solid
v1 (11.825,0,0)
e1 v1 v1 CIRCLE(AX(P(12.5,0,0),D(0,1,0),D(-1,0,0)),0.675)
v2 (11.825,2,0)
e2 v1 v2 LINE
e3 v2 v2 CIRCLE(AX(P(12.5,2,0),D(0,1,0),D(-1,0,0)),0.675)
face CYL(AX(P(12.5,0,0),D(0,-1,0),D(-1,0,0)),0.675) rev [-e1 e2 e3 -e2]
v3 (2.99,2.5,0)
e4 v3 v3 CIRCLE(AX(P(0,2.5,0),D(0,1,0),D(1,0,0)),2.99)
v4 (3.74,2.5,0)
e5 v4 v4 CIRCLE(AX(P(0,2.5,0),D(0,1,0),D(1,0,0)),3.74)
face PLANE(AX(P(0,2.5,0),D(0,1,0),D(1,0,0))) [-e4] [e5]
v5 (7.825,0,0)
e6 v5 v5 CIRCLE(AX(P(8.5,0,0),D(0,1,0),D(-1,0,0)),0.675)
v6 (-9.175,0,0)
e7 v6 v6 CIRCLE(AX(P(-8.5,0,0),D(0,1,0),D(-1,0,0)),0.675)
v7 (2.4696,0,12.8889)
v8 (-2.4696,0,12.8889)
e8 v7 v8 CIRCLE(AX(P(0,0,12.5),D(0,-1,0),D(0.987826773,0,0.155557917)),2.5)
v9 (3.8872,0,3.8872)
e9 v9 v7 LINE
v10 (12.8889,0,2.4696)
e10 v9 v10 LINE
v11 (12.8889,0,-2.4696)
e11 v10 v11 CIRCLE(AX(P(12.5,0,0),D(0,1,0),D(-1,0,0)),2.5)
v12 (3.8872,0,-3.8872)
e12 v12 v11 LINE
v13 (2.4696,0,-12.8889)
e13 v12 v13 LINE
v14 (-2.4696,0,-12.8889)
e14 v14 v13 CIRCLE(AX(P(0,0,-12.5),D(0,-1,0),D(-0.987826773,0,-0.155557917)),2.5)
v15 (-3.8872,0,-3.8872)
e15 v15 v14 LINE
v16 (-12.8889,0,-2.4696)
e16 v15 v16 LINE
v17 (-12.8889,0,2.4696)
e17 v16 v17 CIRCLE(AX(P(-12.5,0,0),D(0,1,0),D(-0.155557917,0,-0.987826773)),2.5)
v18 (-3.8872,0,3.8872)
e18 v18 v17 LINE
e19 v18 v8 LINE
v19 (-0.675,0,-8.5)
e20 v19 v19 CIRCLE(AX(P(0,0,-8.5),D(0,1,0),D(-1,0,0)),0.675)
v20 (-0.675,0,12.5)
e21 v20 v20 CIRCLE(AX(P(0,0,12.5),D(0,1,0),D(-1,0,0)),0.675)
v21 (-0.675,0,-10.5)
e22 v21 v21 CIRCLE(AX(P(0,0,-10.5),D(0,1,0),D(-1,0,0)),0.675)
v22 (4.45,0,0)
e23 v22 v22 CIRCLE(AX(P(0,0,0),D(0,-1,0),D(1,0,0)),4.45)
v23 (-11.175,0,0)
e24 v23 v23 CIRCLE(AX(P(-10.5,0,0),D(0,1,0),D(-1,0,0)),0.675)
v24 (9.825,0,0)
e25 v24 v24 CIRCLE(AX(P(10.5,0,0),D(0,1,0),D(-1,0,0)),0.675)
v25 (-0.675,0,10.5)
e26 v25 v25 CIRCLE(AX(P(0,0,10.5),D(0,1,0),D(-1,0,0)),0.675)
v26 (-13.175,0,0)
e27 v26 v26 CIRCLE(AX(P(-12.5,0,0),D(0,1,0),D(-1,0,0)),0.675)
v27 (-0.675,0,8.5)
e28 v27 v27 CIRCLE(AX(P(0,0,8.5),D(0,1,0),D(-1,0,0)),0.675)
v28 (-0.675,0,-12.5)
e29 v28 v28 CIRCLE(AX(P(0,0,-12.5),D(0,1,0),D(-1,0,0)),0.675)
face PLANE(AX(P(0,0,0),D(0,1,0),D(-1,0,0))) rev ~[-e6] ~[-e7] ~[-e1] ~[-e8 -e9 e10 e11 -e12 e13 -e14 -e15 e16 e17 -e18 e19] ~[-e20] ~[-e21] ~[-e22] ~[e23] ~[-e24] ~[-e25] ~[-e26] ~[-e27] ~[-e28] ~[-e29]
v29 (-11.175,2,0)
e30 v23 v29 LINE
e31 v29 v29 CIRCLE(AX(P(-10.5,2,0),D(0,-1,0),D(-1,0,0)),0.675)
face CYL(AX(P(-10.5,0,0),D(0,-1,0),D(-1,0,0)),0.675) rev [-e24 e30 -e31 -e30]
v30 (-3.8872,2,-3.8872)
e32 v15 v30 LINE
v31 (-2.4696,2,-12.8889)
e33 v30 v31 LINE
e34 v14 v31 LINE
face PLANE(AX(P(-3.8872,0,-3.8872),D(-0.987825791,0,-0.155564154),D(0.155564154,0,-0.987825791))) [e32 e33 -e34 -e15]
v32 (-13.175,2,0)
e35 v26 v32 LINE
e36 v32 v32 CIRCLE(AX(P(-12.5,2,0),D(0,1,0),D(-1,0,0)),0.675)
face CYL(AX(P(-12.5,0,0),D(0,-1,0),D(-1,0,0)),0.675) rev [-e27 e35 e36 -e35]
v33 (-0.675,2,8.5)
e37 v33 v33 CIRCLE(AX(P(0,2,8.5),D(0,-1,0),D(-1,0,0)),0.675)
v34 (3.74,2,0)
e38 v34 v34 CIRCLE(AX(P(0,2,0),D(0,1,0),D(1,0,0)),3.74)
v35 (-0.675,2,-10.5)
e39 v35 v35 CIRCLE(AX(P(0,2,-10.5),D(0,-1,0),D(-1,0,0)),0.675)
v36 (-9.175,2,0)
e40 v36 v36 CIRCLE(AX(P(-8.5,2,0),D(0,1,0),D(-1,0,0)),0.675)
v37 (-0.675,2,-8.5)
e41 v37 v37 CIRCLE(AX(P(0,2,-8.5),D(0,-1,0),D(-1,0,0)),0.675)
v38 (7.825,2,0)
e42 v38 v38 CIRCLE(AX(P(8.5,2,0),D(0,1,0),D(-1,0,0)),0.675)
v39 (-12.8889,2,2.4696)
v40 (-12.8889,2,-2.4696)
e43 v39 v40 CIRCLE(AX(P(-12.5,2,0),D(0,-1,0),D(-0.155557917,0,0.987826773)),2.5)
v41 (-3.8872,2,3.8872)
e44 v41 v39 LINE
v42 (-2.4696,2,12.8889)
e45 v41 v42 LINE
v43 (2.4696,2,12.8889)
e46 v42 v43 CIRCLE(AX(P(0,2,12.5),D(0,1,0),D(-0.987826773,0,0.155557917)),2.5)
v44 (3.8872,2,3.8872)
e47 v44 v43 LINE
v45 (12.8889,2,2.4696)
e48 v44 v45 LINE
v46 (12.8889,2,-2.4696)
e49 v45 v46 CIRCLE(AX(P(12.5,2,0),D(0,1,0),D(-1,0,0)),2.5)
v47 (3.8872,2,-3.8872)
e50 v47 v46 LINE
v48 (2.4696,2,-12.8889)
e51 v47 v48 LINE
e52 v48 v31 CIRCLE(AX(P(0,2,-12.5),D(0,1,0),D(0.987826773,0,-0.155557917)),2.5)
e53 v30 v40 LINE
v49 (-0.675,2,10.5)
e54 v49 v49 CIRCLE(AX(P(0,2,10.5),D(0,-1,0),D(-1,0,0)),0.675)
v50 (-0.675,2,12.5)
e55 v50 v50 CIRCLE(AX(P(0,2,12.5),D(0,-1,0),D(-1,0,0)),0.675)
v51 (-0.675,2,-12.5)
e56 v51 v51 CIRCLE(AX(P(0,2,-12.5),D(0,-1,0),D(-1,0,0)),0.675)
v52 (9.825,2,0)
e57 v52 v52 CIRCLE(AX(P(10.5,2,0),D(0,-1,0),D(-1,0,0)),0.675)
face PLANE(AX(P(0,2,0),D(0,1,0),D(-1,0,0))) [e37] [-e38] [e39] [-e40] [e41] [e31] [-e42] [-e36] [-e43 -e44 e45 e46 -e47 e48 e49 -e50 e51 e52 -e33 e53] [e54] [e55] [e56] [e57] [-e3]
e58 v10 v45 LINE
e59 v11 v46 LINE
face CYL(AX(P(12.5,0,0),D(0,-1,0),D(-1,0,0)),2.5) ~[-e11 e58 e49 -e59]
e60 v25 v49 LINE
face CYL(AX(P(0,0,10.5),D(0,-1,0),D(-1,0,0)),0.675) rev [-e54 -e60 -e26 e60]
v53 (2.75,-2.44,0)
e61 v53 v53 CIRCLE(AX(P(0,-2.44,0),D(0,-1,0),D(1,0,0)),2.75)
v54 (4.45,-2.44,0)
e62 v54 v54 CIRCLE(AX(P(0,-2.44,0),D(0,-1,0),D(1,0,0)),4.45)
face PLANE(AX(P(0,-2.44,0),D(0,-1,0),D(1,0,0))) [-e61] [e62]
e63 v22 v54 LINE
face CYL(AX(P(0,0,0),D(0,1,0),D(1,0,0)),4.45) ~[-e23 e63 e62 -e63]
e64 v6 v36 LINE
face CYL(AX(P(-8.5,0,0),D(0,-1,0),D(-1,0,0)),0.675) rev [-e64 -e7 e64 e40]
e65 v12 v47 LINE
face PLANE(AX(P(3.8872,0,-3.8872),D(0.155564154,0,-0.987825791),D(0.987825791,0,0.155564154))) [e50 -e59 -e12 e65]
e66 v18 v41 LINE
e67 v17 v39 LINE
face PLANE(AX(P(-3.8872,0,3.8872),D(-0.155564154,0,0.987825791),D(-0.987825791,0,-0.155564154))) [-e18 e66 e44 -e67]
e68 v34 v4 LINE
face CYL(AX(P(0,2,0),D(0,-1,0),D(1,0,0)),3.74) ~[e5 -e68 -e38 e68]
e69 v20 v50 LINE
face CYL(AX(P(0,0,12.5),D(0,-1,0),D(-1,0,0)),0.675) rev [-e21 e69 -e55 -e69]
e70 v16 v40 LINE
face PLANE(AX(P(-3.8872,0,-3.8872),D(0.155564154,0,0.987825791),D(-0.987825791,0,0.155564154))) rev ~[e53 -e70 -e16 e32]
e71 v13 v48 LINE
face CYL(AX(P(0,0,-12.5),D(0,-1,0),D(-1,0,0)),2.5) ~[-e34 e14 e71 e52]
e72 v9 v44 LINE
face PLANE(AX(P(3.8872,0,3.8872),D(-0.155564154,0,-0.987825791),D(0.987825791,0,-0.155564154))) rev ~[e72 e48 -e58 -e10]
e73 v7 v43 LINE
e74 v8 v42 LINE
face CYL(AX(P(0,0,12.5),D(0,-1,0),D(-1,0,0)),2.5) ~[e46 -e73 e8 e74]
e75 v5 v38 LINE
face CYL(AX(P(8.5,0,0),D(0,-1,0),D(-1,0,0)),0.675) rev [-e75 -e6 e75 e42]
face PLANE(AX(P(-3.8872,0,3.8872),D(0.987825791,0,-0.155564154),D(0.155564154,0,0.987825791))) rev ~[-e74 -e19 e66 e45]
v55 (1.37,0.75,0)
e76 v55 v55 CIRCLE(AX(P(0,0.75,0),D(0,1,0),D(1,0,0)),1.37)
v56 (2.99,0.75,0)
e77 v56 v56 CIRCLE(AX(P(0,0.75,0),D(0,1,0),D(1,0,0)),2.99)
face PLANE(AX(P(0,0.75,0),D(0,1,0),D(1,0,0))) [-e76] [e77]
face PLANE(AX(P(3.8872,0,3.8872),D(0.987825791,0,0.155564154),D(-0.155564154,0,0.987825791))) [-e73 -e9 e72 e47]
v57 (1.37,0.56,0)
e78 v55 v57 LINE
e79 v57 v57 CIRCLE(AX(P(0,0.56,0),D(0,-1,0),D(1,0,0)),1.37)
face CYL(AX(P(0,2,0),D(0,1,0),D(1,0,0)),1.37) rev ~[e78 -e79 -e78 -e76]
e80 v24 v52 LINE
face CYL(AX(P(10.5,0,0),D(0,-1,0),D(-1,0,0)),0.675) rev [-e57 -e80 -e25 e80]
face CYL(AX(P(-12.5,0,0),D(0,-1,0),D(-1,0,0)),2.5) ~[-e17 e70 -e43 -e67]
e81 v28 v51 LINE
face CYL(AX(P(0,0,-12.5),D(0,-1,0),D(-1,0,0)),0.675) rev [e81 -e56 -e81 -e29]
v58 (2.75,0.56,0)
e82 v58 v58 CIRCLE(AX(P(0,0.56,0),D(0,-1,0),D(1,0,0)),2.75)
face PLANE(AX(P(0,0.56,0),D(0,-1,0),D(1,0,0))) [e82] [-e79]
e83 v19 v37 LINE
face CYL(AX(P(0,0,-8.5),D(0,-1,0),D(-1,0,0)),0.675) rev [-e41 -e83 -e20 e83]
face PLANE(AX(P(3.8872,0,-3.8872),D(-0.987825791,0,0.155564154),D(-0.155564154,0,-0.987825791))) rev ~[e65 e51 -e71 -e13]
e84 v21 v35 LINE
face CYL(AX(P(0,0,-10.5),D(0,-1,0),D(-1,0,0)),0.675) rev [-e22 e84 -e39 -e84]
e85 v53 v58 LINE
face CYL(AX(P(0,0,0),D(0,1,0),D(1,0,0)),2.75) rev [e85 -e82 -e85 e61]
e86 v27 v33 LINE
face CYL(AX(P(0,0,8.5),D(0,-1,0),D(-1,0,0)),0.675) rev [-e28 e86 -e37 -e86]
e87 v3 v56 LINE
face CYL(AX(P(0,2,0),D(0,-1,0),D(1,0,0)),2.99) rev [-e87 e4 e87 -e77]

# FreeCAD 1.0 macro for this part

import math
import FreeCAD as App
import Part
import Sketcher

V = App.Vector
Q = App.Units.Quantity

doc = App.newDocument("Part")
body = doc.addObject("PartDesign::Body", "Body")

# Sketch on XZ plane
sketch1 = body.newObject("Sketcher::SketchObject", "Sketch")
sketch1.AttachmentSupport = (doc.getObject("XZ_Plane"), [""])
sketch1.MapMode = "FlatFace"
sketch1.addGeometry(Part.ArcOfCircle(Part.Circle(V(-12.5, 0, 0), V(0, 0, 1), 2.5), math.radians(99), math.radians(261)), False)
sketch1.addGeometry(Part.LineSegment(V(-12.9, 2.5, 0), V(-3.9, 3.9, 0)), False)
sketch1.addGeometry(Part.LineSegment(V(-3.9, 3.9, 0), V(-2.5, 12.9, 0)), False)
sketch1.addGeometry(Part.ArcOfCircle(Part.Circle(V(0, 12.5, 0), V(0, 0, 1), 2.5), math.radians(9), math.radians(171)), False)
sketch1.addGeometry(Part.LineSegment(V(2.5, 12.9, 0), V(3.9, 3.9, 0)), False)
sketch1.addGeometry(Part.LineSegment(V(3.9, 3.9, 0), V(12.9, 2.5, 0)), False)
sketch1.addGeometry(Part.ArcOfCircle(Part.Circle(V(12.5, 0, 0), V(0, 0, 1), 2.5), math.radians(-81), math.radians(81)), False)
sketch1.addGeometry(Part.LineSegment(V(12.9, -2.5, 0), V(3.9, -3.9, 0)), False)
sketch1.addGeometry(Part.LineSegment(V(3.9, -3.9, 0), V(2.5, -12.9, 0)), False)
sketch1.addGeometry(Part.ArcOfCircle(Part.Circle(V(0, -12.5, 0), V(0, 0, 1), 2.5), math.radians(-171), math.radians(-9)), False)
sketch1.addGeometry(Part.LineSegment(V(-2.5, -12.9, 0), V(-3.9, -3.9, 0)), False)
sketch1.addGeometry(Part.LineSegment(V(-3.9, -3.9, 0), V(-12.9, -2.5, 0)), False)
sketch1.addGeometry(Part.Circle(V(-10.5, 0, 0), V(0, 0, 1), 0.7), False)
sketch1.addGeometry(Part.Circle(V(-12.5, 0, 0), V(0, 0, 1), 0.7), False)
sketch1.addGeometry(Part.Circle(V(-8.5, 0, 0), V(0, 0, 1), 0.7), False)
sketch1.addGeometry(Part.Circle(V(0, -10.5, 0), V(0, 0, 1), 0.7), False)
sketch1.addGeometry(Part.Circle(V(0, -8.5, 0), V(0, 0, 1), 0.7), False)
sketch1.addGeometry(Part.Circle(V(0, 8.5, 0), V(0, 0, 1), 0.7), False)
sketch1.addGeometry(Part.Circle(V(0, 10.5, 0), V(0, 0, 1), 0.7), False)
sketch1.addGeometry(Part.Circle(V(0, -12.5, 0), V(0, 0, 1), 0.7), False)
sketch1.addGeometry(Part.Circle(V(8.5, 0, 0), V(0, 0, 1), 0.7), False)
sketch1.addGeometry(Part.Circle(V(10.5, 0, 0), V(0, 0, 1), 0.7), False)
sketch1.addGeometry(Part.Circle(V(0, 12.5, 0), V(0, 0, 1), 0.7), False)
sketch1.addGeometry(Part.Circle(V(12.5, 0, 0), V(0, 0, 1), 0.7), False)
sketch1.addConstraint(Sketcher.Constraint("Tangent", 0, 1, 1, 1))
sketch1.addConstraint(Sketcher.Constraint("Coincident", 1, 2, 2, 1))
sketch1.addConstraint(Sketcher.Constraint("Tangent", 2, 2, 3, 2))
sketch1.addConstraint(Sketcher.Constraint("Tangent", 3, 1, 4, 1))
sketch1.addConstraint(Sketcher.Constraint("Coincident", 4, 2, 5, 1))
sketch1.addConstraint(Sketcher.Constraint("Tangent", 5, 2, 6, 2))
sketch1.addConstraint(Sketcher.Constraint("Tangent", 6, 1, 7, 1))
sketch1.addConstraint(Sketcher.Constraint("Coincident", 7, 2, 8, 1))
sketch1.addConstraint(Sketcher.Constraint("Tangent", 8, 2, 9, 2))
sketch1.addConstraint(Sketcher.Constraint("Tangent", 9, 1, 10, 1))
sketch1.addConstraint(Sketcher.Constraint("Coincident", 10, 2, 11, 1))
sketch1.addConstraint(Sketcher.Constraint("Tangent", 11, 2, 0, 2))
sketch1.addConstraint(Sketcher.Constraint("Coincident", 13, 3, 0, 3))
sketch1.addConstraint(Sketcher.Constraint("Coincident", 19, 3, 9, 3))
sketch1.addConstraint(Sketcher.Constraint("Coincident", 22, 3, 3, 3))
sketch1.addConstraint(Sketcher.Constraint("Coincident", 23, 3, 6, 3))
sketch1.addConstraint(Sketcher.Constraint("Equal", 0, 3))
sketch1.addConstraint(Sketcher.Constraint("Equal", 3, 6))
sketch1.addConstraint(Sketcher.Constraint("Equal", 6, 9))
sketch1.addConstraint(Sketcher.Constraint("Equal", 12, 13))
sketch1.addConstraint(Sketcher.Constraint("Equal", 13, 14))
sketch1.addConstraint(Sketcher.Constraint("Equal", 14, 15))
sketch1.addConstraint(Sketcher.Constraint("Equal", 15, 16))
sketch1.addConstraint(Sketcher.Constraint("Equal", 16, 17))
sketch1.addConstraint(Sketcher.Constraint("Equal", 17, 18))
sketch1.addConstraint(Sketcher.Constraint("Equal", 18, 19))
sketch1.addConstraint(Sketcher.Constraint("Equal", 19, 20))
sketch1.addConstraint(Sketcher.Constraint("Equal", 20, 21))
sketch1.addConstraint(Sketcher.Constraint("Equal", 21, 22))
sketch1.addConstraint(Sketcher.Constraint("Equal", 22, 23))
sketch1.addConstraint(Sketcher.Constraint("Symmetric", 0, 3, 6, 3, -1, 1))
sketch1.addConstraint(Sketcher.Constraint("Symmetric", 3, 3, 9, 3, -1, 1))
sketch1.addConstraint(Sketcher.Constraint("Symmetric", 16, 3, 17, 3, -1, 1))
sketch1.addConstraint(Sketcher.Constraint("Symmetric", 15, 3, 18, 3, -1, 1))
sketch1.addConstraint(Sketcher.Constraint("Symmetric", 14, 3, 20, 3, -1, 1))
sketch1.addConstraint(Sketcher.Constraint("Symmetric", 12, 3, 21, 3, -1, 1))
sketch1.addConstraint(Sketcher.Constraint("Symmetric", 1, 2, 7, 2, -1, 1))
sketch1.addConstraint(Sketcher.Constraint("Symmetric", 4, 2, 10, 2, -1, 1))
sketch1.addConstraint(Sketcher.Constraint("Symmetric", 2, 2, 3, 1, -2))
sketch1.addConstraint(Sketcher.Constraint("Symmetric", 0, 1, 5, 2, -2))
sketch1.addConstraint(Sketcher.Constraint("PointOnObject", 12, 3, -1))
sketch1.addConstraint(Sketcher.Constraint("PointOnObject", 14, 3, -1))
sketch1.addConstraint(Sketcher.Constraint("PointOnObject", 15, 3, -2))
sketch1.addConstraint(Sketcher.Constraint("PointOnObject", 16, 3, -2))
sketch1.addConstraint(Sketcher.Constraint("Perpendicular", 1, 4))
sketch1.addConstraint(Sketcher.Constraint("Equal", 1, 2))
sketch1.addConstraint(Sketcher.Constraint("Radius", 0, 2.5))
sketch1.addConstraint(Sketcher.Constraint("Diameter", 12, 1.35))
sketch1.addConstraint(Sketcher.Constraint("DistanceX", 0, 3, 6, 3, 25.0))
sketch1.addConstraint(Sketcher.Constraint("DistanceX", 0, 3, 12, 3, 2.0))
sketch1.addConstraint(Sketcher.Constraint("DistanceX", 12, 3, 14, 3, 2.0))
sketch1.addConstraint(Sketcher.Constraint("DistanceY", 9, 3, 15, 3, 2.0))
sketch1.addConstraint(Sketcher.Constraint("DistanceY", 15, 3, 16, 3, 2.0))
sketch1.addConstraint(Sketcher.Constraint("Angle", 1, Q("8.9495 deg")))
pad1 = body.newObject("PartDesign::Pad", "Pad")
pad1.Profile = sketch1
pad1.Length = 2
pad1.Reversed = True

# Sketch on XZ plane
sketch2 = body.newObject("Sketcher::SketchObject", "Sketch001")
sketch2.AttachmentSupport = (doc.getObject("XZ_Plane"), [""])
sketch2.MapMode = "FlatFace"
sketch2.AttachmentOffset = App.Placement(V(0, 0, -2), App.Rotation())
sketch2.addGeometry(Part.Circle(V(0, 0, 0), V(0, 0, 1), 3.7), False)
sketch2.addGeometry(Part.Circle(V(0, 0, 0), V(0, 0, 1), 3), False)
sketch2.addConstraint(Sketcher.Constraint("Coincident", 0, 3, -1, 1))
sketch2.addConstraint(Sketcher.Constraint("Coincident", 1, 3, -1, 1))
sketch2.addConstraint(Sketcher.Constraint("Diameter", 0, 7.48))
sketch2.addConstraint(Sketcher.Constraint("Diameter", 1, 5.98))
pad2 = body.newObject("PartDesign::Pad", "Pad001")
pad2.Profile = sketch2
pad2.Length = 0.5
pad2.Reversed = True

# Sketch on XZ plane
sketch3 = body.newObject("Sketcher::SketchObject", "Sketch002")
sketch3.AttachmentSupport = (doc.getObject("XZ_Plane"), [""])
sketch3.MapMode = "FlatFace"
sketch3.AttachmentOffset = App.Placement(V(0, 0, -2), App.Rotation())
sketch3.addGeometry(Part.Circle(V(0, 0, 0), V(0, 0, 1), 3), False)
sketch3.addGeometry(Part.Circle(V(0, 0, 0), V(0, 0, 1), 1.4), False)
sketch3.addConstraint(Sketcher.Constraint("Coincident", 0, 3, -1, 1))
sketch3.addConstraint(Sketcher.Constraint("Coincident", 1, 3, -1, 1))
sketch3.addConstraint(Sketcher.Constraint("Diameter", 0, 5.98))
sketch3.addConstraint(Sketcher.Constraint("Diameter", 1, 2.74))
pocket1 = body.newObject("PartDesign::Pocket", "Pocket")
pocket1.Profile = sketch3
pocket1.Length = 1.25
pocket1.Reversed = True

# Sketch on XZ plane
sketch4 = body.newObject("Sketcher::SketchObject", "Sketch003")
sketch4.AttachmentSupport = (doc.getObject("XZ_Plane"), [""])
sketch4.MapMode = "FlatFace"
sketch4.AttachmentOffset = App.Placement(V(0, 0, -2), App.Rotation())
sketch4.addGeometry(Part.Circle(V(0, 0, 0), V(0, 0, 1), 1.4), False)
sketch4.addConstraint(Sketcher.Constraint("Coincident", 0, 3, -1, 1))
sketch4.addConstraint(Sketcher.Constraint("Diameter", 0, 2.74))
pocket2 = body.newObject("PartDesign::Pocket", "Pocket001")
pocket2.Profile = sketch4
pocket2.Type = "ThroughAll"
pocket2.Reversed = True

# Sketch on XZ plane
sketch5 = body.newObject("Sketcher::SketchObject", "Sketch004")
sketch5.AttachmentSupport = (doc.getObject("XZ_Plane"), [""])
sketch5.MapMode = "FlatFace"
sketch5.addGeometry(Part.Circle(V(0, 0, 0), V(0, 0, 1), 4.5), False)
sketch5.addGeometry(Part.Circle(V(0, 0, 0), V(0, 0, 1), 2.8), False)
sketch5.addConstraint(Sketcher.Constraint("Coincident", 0, 3, -1, 1))
sketch5.addConstraint(Sketcher.Constraint("Coincident", 1, 3, -1, 1))
sketch5.addConstraint(Sketcher.Constraint("Diameter", 0, 8.9))
sketch5.addConstraint(Sketcher.Constraint("Diameter", 1, 5.5))
pad3 = body.newObject("PartDesign::Pad", "Pad002")
pad3.Profile = sketch5
pad3.Length = 2.44

# Sketch on XZ plane
sketch6 = body.newObject("Sketcher::SketchObject", "Sketch005")
sketch6.AttachmentSupport = (doc.getObject("XZ_Plane"), [""])
sketch6.MapMode = "FlatFace"
sketch6.addGeometry(Part.Circle(V(0, 0, 0), V(0, 0, 1), 2.8), False)
sketch6.addGeometry(Part.Circle(V(0, 0, 0), V(0, 0, 1), 1.4), False)
sketch6.addConstraint(Sketcher.Constraint("Coincident", 0, 3, -1, 1))
sketch6.addConstraint(Sketcher.Constraint("Coincident", 1, 3, -1, 1))
sketch6.addConstraint(Sketcher.Constraint("Diameter", 0, 5.5))
sketch6.addConstraint(Sketcher.Constraint("Diameter", 1, 2.74))
pocket3 = body.newObject("PartDesign::Pocket", "Pocket002")
pocket3.Profile = sketch6
pocket3.Length = 0.56

doc.recompute()
